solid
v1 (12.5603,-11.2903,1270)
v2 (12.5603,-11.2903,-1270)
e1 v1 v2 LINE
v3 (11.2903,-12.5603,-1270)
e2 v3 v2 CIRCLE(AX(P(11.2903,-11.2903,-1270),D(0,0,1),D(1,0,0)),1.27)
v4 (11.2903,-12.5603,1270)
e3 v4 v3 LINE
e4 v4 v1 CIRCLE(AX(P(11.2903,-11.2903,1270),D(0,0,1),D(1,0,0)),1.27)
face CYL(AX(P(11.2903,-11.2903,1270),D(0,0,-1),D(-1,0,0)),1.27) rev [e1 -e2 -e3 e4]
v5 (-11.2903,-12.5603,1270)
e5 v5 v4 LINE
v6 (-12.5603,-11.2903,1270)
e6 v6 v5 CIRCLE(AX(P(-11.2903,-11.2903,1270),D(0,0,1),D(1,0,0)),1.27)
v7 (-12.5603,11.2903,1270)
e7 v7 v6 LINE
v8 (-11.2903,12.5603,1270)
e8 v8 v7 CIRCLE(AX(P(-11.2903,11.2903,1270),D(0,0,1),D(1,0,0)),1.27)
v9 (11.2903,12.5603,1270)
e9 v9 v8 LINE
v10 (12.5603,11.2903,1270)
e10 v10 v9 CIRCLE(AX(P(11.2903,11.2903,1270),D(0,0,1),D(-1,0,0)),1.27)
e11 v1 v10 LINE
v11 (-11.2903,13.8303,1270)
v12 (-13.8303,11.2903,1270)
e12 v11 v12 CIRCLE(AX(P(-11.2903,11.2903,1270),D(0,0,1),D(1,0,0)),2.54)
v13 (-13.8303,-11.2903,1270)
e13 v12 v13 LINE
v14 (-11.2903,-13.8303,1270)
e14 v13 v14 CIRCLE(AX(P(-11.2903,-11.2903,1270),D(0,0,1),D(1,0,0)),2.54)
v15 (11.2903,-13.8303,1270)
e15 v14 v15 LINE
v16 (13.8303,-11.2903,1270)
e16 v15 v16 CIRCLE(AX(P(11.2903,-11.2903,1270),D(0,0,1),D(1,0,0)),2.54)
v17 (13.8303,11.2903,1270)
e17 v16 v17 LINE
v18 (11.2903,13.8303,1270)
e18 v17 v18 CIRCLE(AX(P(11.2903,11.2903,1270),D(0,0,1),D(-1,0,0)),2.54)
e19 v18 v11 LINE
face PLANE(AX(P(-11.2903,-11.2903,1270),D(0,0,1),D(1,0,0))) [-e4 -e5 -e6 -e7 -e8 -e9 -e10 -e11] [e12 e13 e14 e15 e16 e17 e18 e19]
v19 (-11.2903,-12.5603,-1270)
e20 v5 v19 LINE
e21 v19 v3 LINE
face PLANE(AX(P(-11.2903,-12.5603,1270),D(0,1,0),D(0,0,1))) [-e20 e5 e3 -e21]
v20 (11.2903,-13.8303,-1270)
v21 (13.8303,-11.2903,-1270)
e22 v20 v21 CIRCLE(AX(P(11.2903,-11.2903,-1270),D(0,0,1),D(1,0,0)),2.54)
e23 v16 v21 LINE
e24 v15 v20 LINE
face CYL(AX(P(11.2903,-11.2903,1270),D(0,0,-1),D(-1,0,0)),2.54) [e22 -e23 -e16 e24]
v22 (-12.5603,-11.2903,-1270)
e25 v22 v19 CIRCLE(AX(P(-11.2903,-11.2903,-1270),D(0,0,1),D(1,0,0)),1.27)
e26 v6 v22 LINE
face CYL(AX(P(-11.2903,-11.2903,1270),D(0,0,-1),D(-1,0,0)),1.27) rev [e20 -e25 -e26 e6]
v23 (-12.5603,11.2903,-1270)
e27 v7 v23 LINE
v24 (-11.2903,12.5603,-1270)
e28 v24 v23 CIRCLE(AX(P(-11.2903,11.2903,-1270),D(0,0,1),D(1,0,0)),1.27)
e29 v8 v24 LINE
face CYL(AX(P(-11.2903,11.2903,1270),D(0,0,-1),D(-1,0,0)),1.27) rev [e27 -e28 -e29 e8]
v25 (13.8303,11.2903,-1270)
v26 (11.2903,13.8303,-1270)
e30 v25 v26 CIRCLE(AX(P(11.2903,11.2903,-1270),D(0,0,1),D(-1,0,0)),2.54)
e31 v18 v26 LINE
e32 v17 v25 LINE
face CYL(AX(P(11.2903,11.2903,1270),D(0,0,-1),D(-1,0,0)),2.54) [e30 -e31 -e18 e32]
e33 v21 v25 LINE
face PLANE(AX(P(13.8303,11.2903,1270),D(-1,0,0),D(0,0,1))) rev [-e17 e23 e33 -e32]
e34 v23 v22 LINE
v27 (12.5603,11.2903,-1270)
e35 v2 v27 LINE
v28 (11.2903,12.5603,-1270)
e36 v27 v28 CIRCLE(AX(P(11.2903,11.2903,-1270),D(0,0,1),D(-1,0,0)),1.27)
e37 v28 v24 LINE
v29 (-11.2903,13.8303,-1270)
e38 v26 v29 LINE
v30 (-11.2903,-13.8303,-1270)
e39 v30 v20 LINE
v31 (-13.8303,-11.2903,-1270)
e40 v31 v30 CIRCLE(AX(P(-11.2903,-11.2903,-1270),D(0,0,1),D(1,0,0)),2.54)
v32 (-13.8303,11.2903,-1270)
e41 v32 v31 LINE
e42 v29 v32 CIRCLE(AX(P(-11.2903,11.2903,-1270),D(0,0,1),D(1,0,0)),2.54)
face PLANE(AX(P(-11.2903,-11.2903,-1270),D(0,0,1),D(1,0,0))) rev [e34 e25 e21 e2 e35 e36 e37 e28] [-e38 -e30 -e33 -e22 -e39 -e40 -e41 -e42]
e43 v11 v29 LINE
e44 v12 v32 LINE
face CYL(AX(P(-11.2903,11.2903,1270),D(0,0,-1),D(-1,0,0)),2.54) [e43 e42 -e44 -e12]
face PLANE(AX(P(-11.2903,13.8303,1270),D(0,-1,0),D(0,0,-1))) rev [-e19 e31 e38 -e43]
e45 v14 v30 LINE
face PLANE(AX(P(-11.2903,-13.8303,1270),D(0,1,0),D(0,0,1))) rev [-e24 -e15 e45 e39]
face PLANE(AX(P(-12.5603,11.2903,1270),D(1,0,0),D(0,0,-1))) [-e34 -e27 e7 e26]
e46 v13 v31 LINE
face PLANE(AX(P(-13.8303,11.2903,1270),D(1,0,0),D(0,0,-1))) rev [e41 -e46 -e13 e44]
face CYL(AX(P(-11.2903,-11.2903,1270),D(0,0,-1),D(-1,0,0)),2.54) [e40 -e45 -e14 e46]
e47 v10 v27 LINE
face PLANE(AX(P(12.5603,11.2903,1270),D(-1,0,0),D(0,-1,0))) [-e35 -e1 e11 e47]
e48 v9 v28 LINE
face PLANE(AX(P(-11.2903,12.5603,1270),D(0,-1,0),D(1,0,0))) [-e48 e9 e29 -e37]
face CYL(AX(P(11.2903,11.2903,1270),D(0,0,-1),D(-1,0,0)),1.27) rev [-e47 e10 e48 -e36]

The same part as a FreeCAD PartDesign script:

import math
import FreeCAD as App
import Part
import Sketcher
from FreeCAD import Vector
Q = App.Units.Quantity

doc = App.newDocument("Part")
body = doc.addObject("PartDesign::Body", "Body")

# Sketch on XY plane
sketch1 = body.newObject("Sketcher::SketchObject", "Sketch")
sketch1.AttachmentSupport = (doc.getObject("XY_Plane"), [""])
sketch1.MapMode = "FlatFace"
sketch1.addGeometry([
    Part.LineSegment(Vector(11.3, 13.8, 0), Vector(-11.3, 13.8, 0)),  # 0
    Part.ArcOfCircle(Part.Circle(Vector(-11.3, 11.3, 0), Vector(0, 0, 1), 2.5), math.radians(90), math.radians(180)),  # 1
    Part.LineSegment(Vector(-13.8, 11.3, 0), Vector(-13.8, -11.3, 0)),  # 2
    Part.ArcOfCircle(Part.Circle(Vector(-11.3, -11.3, 0), Vector(0, 0, 1), 2.5), math.radians(-180), math.radians(-90)),  # 3
    Part.LineSegment(Vector(-11.3, -13.8, 0), Vector(11.3, -13.8, 0)),  # 4
    Part.ArcOfCircle(Part.Circle(Vector(11.3, -11.3, 0), Vector(0, 0, 1), 2.5), math.radians(-90), math.radians(0)),  # 5
    Part.LineSegment(Vector(13.8, -11.3, 0), Vector(13.8, 11.3, 0)),  # 6
    Part.ArcOfCircle(Part.Circle(Vector(11.3, 11.3, 0), Vector(0, 0, 1), 2.5), math.radians(0), math.radians(90)),  # 7
    Part.ArcOfCircle(Part.Circle(Vector(-11.3, 11.3, 0), Vector(0, 0, 1), 1.3), math.radians(90), math.radians(180)),  # 8
    Part.LineSegment(Vector(-11.3, 12.6, 0), Vector(11.3, 12.6, 0)),  # 9
    Part.ArcOfCircle(Part.Circle(Vector(11.3, 11.3, 0), Vector(0, 0, 1), 1.3), math.radians(0), math.radians(90)),  # 10
    Part.LineSegment(Vector(12.6, 11.3, 0), Vector(12.6, -11.3, 0)),  # 11
    Part.ArcOfCircle(Part.Circle(Vector(11.3, -11.3, 0), Vector(0, 0, 1), 1.3), math.radians(-90), math.radians(0)),  # 12
    Part.LineSegment(Vector(11.3, -12.6, 0), Vector(-11.3, -12.6, 0)),  # 13
    Part.ArcOfCircle(Part.Circle(Vector(-11.3, -11.3, 0), Vector(0, 0, 1), 1.3), math.radians(180), math.radians(270)),  # 14
    Part.LineSegment(Vector(-12.6, -11.3, 0), Vector(-12.6, 11.3, 0)),  # 15
], False)
sketch1.addConstraint([
    Sketcher.Constraint("Tangent", 0, 2, 1, 1),
    Sketcher.Constraint("Tangent", 1, 2, 2, 1),
    Sketcher.Constraint("Tangent", 2, 2, 3, 1),
    Sketcher.Constraint("Tangent", 3, 2, 4, 1),
    Sketcher.Constraint("Tangent", 4, 2, 5, 1),
    Sketcher.Constraint("Tangent", 5, 2, 6, 1),
    Sketcher.Constraint("Tangent", 6, 2, 7, 1),
    Sketcher.Constraint("Tangent", 7, 2, 0, 1),
    Sketcher.Constraint("Tangent", 8, 1, 9, 1),
    Sketcher.Constraint("Tangent", 9, 2, 10, 2),
    Sketcher.Constraint("Tangent", 10, 1, 11, 1),
    Sketcher.Constraint("Tangent", 11, 2, 12, 2),
    Sketcher.Constraint("Tangent", 12, 1, 13, 1),
    Sketcher.Constraint("Tangent", 13, 2, 14, 2),
    Sketcher.Constraint("Tangent", 14, 1, 15, 1),
    Sketcher.Constraint("Tangent", 15, 2, 8, 2),
    Sketcher.Constraint("Horizontal", 0),
    Sketcher.Constraint("Vertical", 2),
    Sketcher.Constraint("Horizontal", 4),
    Sketcher.Constraint("Vertical", 6),
    Sketcher.Constraint("Horizontal", 9),
    Sketcher.Constraint("Vertical", 11),
    Sketcher.Constraint("Horizontal", 13),
    Sketcher.Constraint("Vertical", 15),
    Sketcher.Constraint("Coincident", 8, 3, 1, 3),
    Sketcher.Constraint("Coincident", 10, 3, 7, 3),
    Sketcher.Constraint("Coincident", 12, 3, 5, 3),
    Sketcher.Constraint("Equal", 1, 3),
    Sketcher.Constraint("Equal", 3, 5),
    Sketcher.Constraint("Equal", 5, 7),
    Sketcher.Constraint("Equal", 12, 14),
    Sketcher.Constraint("Symmetric", 1, 3, 5, 3, -1, 1),
    Sketcher.Constraint("Equal", 13, 2),
    Sketcher.Constraint("Radius", 1, Q("0.1 in")),
    Sketcher.Constraint("Radius", 8, Q("0.05 in")),
    Sketcher.Constraint("DistanceX", 0, 2, 0, 1, Q("0.889 in")),
])
pad1 = body.newObject("PartDesign::Pad", "Pad")
pad1.Profile = sketch1
pad1.Length = Q("100 in")
pad1.Midplane = True

doc.recompute()
